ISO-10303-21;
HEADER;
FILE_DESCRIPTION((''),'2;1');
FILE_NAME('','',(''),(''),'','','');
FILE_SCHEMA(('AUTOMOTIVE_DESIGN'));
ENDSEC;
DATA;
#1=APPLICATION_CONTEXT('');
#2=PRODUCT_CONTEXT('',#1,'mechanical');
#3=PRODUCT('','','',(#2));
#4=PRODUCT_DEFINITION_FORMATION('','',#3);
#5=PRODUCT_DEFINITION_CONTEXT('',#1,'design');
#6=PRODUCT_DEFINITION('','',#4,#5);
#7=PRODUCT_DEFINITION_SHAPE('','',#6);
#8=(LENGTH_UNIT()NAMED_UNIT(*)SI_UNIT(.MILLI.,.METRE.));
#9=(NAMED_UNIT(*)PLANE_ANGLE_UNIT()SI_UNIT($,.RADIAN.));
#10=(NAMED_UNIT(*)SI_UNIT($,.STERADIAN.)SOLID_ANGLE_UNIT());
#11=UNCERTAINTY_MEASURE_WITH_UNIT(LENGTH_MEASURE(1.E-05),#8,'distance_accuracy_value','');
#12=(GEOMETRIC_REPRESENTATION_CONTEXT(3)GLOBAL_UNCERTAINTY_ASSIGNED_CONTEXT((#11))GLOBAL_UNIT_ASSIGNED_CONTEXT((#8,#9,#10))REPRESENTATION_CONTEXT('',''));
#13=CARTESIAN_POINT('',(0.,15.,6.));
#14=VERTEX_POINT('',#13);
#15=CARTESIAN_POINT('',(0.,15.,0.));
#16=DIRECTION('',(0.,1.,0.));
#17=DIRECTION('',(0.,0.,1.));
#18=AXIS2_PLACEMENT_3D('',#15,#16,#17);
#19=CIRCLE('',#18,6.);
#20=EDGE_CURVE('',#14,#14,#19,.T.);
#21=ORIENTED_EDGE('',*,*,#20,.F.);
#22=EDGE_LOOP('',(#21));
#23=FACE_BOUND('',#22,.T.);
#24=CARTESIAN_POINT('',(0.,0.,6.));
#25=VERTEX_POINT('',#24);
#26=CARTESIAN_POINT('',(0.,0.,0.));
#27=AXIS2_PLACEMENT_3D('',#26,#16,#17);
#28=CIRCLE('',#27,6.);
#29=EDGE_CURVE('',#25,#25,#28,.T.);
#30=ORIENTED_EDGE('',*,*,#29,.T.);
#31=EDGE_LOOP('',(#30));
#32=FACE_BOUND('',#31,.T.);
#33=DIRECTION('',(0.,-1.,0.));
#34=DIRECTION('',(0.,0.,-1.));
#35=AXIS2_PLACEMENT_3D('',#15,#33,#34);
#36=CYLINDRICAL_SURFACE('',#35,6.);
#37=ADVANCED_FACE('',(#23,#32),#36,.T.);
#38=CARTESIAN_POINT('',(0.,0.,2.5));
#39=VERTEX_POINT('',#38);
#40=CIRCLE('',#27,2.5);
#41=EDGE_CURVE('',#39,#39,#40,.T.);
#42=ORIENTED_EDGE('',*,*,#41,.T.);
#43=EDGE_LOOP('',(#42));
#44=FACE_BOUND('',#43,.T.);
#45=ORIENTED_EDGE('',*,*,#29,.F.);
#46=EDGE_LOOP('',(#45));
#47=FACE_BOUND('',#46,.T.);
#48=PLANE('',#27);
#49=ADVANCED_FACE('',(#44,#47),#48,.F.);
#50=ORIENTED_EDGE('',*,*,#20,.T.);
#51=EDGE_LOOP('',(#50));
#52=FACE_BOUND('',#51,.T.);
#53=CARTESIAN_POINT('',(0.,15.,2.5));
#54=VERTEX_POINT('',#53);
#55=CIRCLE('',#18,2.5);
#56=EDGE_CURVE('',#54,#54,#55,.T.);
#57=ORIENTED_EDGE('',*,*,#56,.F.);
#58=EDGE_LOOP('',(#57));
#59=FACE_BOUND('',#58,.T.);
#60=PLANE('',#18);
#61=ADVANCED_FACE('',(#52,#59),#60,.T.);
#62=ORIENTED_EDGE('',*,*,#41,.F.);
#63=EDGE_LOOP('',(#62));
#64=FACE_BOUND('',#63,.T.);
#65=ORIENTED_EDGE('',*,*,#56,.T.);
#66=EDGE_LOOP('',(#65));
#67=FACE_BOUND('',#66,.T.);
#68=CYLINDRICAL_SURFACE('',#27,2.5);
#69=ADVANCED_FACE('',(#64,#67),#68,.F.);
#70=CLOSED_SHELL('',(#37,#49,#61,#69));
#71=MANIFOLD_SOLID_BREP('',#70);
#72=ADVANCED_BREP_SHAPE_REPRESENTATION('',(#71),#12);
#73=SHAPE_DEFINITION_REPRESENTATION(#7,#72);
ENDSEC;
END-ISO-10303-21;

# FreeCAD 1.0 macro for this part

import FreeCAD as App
import Part
import Sketcher

V = App.Vector
Q = App.Units.Quantity

doc = App.newDocument("Part")
body = doc.addObject("PartDesign::Body", "Body")

# Sketch on XZ plane
sketch1 = doc.addObject("Sketcher::SketchObject", "Sketch")
body.addObject(sketch1)
sketch1.AttachmentSupport = (doc.XZ_Plane, [""])
sketch1.MapMode = "FlatFace"
sketch1.addGeometry(Part.Circle(V(0, 0, 0), V(0, 0, 1), 6), False)
sketch1.addConstraint([
    Sketcher.Constraint("Coincident", 0, 3, -1, 1),
    Sketcher.Constraint("Diameter", 0, Q("12 mm")),
])
pad1 = doc.addObject("PartDesign::Pad", "Pad")
body.addObject(pad1)
pad1.Profile = sketch1
pad1.Length = 15
pad1.Reversed = True

# Sketch on XZ plane
sketch2 = doc.addObject("Sketcher::SketchObject", "Sketch001")
body.addObject(sketch2)
sketch2.AttachmentSupport = (doc.XZ_Plane, [""])
sketch2.MapMode = "FlatFace"
sketch2.AttachmentOffset = App.Placement(V(0, 0, -15), App.Rotation())
sketch2.addGeometry(Part.Circle(V(0, 0, 0), V(0, 0, 1), 2.5), False)
sketch2.addConstraint([
    Sketcher.Constraint("Coincident", 0, 3, -1, 1),
    Sketcher.Constraint("Diameter", 0, Q("5 mm")),
])
pocket1 = doc.addObject("PartDesign::Pocket", "Pocket")
body.addObject(pocket1)
pocket1.Profile = sketch2
pocket1.Type = "ThroughAll"
pocket1.Reversed = True

doc.recompute()
